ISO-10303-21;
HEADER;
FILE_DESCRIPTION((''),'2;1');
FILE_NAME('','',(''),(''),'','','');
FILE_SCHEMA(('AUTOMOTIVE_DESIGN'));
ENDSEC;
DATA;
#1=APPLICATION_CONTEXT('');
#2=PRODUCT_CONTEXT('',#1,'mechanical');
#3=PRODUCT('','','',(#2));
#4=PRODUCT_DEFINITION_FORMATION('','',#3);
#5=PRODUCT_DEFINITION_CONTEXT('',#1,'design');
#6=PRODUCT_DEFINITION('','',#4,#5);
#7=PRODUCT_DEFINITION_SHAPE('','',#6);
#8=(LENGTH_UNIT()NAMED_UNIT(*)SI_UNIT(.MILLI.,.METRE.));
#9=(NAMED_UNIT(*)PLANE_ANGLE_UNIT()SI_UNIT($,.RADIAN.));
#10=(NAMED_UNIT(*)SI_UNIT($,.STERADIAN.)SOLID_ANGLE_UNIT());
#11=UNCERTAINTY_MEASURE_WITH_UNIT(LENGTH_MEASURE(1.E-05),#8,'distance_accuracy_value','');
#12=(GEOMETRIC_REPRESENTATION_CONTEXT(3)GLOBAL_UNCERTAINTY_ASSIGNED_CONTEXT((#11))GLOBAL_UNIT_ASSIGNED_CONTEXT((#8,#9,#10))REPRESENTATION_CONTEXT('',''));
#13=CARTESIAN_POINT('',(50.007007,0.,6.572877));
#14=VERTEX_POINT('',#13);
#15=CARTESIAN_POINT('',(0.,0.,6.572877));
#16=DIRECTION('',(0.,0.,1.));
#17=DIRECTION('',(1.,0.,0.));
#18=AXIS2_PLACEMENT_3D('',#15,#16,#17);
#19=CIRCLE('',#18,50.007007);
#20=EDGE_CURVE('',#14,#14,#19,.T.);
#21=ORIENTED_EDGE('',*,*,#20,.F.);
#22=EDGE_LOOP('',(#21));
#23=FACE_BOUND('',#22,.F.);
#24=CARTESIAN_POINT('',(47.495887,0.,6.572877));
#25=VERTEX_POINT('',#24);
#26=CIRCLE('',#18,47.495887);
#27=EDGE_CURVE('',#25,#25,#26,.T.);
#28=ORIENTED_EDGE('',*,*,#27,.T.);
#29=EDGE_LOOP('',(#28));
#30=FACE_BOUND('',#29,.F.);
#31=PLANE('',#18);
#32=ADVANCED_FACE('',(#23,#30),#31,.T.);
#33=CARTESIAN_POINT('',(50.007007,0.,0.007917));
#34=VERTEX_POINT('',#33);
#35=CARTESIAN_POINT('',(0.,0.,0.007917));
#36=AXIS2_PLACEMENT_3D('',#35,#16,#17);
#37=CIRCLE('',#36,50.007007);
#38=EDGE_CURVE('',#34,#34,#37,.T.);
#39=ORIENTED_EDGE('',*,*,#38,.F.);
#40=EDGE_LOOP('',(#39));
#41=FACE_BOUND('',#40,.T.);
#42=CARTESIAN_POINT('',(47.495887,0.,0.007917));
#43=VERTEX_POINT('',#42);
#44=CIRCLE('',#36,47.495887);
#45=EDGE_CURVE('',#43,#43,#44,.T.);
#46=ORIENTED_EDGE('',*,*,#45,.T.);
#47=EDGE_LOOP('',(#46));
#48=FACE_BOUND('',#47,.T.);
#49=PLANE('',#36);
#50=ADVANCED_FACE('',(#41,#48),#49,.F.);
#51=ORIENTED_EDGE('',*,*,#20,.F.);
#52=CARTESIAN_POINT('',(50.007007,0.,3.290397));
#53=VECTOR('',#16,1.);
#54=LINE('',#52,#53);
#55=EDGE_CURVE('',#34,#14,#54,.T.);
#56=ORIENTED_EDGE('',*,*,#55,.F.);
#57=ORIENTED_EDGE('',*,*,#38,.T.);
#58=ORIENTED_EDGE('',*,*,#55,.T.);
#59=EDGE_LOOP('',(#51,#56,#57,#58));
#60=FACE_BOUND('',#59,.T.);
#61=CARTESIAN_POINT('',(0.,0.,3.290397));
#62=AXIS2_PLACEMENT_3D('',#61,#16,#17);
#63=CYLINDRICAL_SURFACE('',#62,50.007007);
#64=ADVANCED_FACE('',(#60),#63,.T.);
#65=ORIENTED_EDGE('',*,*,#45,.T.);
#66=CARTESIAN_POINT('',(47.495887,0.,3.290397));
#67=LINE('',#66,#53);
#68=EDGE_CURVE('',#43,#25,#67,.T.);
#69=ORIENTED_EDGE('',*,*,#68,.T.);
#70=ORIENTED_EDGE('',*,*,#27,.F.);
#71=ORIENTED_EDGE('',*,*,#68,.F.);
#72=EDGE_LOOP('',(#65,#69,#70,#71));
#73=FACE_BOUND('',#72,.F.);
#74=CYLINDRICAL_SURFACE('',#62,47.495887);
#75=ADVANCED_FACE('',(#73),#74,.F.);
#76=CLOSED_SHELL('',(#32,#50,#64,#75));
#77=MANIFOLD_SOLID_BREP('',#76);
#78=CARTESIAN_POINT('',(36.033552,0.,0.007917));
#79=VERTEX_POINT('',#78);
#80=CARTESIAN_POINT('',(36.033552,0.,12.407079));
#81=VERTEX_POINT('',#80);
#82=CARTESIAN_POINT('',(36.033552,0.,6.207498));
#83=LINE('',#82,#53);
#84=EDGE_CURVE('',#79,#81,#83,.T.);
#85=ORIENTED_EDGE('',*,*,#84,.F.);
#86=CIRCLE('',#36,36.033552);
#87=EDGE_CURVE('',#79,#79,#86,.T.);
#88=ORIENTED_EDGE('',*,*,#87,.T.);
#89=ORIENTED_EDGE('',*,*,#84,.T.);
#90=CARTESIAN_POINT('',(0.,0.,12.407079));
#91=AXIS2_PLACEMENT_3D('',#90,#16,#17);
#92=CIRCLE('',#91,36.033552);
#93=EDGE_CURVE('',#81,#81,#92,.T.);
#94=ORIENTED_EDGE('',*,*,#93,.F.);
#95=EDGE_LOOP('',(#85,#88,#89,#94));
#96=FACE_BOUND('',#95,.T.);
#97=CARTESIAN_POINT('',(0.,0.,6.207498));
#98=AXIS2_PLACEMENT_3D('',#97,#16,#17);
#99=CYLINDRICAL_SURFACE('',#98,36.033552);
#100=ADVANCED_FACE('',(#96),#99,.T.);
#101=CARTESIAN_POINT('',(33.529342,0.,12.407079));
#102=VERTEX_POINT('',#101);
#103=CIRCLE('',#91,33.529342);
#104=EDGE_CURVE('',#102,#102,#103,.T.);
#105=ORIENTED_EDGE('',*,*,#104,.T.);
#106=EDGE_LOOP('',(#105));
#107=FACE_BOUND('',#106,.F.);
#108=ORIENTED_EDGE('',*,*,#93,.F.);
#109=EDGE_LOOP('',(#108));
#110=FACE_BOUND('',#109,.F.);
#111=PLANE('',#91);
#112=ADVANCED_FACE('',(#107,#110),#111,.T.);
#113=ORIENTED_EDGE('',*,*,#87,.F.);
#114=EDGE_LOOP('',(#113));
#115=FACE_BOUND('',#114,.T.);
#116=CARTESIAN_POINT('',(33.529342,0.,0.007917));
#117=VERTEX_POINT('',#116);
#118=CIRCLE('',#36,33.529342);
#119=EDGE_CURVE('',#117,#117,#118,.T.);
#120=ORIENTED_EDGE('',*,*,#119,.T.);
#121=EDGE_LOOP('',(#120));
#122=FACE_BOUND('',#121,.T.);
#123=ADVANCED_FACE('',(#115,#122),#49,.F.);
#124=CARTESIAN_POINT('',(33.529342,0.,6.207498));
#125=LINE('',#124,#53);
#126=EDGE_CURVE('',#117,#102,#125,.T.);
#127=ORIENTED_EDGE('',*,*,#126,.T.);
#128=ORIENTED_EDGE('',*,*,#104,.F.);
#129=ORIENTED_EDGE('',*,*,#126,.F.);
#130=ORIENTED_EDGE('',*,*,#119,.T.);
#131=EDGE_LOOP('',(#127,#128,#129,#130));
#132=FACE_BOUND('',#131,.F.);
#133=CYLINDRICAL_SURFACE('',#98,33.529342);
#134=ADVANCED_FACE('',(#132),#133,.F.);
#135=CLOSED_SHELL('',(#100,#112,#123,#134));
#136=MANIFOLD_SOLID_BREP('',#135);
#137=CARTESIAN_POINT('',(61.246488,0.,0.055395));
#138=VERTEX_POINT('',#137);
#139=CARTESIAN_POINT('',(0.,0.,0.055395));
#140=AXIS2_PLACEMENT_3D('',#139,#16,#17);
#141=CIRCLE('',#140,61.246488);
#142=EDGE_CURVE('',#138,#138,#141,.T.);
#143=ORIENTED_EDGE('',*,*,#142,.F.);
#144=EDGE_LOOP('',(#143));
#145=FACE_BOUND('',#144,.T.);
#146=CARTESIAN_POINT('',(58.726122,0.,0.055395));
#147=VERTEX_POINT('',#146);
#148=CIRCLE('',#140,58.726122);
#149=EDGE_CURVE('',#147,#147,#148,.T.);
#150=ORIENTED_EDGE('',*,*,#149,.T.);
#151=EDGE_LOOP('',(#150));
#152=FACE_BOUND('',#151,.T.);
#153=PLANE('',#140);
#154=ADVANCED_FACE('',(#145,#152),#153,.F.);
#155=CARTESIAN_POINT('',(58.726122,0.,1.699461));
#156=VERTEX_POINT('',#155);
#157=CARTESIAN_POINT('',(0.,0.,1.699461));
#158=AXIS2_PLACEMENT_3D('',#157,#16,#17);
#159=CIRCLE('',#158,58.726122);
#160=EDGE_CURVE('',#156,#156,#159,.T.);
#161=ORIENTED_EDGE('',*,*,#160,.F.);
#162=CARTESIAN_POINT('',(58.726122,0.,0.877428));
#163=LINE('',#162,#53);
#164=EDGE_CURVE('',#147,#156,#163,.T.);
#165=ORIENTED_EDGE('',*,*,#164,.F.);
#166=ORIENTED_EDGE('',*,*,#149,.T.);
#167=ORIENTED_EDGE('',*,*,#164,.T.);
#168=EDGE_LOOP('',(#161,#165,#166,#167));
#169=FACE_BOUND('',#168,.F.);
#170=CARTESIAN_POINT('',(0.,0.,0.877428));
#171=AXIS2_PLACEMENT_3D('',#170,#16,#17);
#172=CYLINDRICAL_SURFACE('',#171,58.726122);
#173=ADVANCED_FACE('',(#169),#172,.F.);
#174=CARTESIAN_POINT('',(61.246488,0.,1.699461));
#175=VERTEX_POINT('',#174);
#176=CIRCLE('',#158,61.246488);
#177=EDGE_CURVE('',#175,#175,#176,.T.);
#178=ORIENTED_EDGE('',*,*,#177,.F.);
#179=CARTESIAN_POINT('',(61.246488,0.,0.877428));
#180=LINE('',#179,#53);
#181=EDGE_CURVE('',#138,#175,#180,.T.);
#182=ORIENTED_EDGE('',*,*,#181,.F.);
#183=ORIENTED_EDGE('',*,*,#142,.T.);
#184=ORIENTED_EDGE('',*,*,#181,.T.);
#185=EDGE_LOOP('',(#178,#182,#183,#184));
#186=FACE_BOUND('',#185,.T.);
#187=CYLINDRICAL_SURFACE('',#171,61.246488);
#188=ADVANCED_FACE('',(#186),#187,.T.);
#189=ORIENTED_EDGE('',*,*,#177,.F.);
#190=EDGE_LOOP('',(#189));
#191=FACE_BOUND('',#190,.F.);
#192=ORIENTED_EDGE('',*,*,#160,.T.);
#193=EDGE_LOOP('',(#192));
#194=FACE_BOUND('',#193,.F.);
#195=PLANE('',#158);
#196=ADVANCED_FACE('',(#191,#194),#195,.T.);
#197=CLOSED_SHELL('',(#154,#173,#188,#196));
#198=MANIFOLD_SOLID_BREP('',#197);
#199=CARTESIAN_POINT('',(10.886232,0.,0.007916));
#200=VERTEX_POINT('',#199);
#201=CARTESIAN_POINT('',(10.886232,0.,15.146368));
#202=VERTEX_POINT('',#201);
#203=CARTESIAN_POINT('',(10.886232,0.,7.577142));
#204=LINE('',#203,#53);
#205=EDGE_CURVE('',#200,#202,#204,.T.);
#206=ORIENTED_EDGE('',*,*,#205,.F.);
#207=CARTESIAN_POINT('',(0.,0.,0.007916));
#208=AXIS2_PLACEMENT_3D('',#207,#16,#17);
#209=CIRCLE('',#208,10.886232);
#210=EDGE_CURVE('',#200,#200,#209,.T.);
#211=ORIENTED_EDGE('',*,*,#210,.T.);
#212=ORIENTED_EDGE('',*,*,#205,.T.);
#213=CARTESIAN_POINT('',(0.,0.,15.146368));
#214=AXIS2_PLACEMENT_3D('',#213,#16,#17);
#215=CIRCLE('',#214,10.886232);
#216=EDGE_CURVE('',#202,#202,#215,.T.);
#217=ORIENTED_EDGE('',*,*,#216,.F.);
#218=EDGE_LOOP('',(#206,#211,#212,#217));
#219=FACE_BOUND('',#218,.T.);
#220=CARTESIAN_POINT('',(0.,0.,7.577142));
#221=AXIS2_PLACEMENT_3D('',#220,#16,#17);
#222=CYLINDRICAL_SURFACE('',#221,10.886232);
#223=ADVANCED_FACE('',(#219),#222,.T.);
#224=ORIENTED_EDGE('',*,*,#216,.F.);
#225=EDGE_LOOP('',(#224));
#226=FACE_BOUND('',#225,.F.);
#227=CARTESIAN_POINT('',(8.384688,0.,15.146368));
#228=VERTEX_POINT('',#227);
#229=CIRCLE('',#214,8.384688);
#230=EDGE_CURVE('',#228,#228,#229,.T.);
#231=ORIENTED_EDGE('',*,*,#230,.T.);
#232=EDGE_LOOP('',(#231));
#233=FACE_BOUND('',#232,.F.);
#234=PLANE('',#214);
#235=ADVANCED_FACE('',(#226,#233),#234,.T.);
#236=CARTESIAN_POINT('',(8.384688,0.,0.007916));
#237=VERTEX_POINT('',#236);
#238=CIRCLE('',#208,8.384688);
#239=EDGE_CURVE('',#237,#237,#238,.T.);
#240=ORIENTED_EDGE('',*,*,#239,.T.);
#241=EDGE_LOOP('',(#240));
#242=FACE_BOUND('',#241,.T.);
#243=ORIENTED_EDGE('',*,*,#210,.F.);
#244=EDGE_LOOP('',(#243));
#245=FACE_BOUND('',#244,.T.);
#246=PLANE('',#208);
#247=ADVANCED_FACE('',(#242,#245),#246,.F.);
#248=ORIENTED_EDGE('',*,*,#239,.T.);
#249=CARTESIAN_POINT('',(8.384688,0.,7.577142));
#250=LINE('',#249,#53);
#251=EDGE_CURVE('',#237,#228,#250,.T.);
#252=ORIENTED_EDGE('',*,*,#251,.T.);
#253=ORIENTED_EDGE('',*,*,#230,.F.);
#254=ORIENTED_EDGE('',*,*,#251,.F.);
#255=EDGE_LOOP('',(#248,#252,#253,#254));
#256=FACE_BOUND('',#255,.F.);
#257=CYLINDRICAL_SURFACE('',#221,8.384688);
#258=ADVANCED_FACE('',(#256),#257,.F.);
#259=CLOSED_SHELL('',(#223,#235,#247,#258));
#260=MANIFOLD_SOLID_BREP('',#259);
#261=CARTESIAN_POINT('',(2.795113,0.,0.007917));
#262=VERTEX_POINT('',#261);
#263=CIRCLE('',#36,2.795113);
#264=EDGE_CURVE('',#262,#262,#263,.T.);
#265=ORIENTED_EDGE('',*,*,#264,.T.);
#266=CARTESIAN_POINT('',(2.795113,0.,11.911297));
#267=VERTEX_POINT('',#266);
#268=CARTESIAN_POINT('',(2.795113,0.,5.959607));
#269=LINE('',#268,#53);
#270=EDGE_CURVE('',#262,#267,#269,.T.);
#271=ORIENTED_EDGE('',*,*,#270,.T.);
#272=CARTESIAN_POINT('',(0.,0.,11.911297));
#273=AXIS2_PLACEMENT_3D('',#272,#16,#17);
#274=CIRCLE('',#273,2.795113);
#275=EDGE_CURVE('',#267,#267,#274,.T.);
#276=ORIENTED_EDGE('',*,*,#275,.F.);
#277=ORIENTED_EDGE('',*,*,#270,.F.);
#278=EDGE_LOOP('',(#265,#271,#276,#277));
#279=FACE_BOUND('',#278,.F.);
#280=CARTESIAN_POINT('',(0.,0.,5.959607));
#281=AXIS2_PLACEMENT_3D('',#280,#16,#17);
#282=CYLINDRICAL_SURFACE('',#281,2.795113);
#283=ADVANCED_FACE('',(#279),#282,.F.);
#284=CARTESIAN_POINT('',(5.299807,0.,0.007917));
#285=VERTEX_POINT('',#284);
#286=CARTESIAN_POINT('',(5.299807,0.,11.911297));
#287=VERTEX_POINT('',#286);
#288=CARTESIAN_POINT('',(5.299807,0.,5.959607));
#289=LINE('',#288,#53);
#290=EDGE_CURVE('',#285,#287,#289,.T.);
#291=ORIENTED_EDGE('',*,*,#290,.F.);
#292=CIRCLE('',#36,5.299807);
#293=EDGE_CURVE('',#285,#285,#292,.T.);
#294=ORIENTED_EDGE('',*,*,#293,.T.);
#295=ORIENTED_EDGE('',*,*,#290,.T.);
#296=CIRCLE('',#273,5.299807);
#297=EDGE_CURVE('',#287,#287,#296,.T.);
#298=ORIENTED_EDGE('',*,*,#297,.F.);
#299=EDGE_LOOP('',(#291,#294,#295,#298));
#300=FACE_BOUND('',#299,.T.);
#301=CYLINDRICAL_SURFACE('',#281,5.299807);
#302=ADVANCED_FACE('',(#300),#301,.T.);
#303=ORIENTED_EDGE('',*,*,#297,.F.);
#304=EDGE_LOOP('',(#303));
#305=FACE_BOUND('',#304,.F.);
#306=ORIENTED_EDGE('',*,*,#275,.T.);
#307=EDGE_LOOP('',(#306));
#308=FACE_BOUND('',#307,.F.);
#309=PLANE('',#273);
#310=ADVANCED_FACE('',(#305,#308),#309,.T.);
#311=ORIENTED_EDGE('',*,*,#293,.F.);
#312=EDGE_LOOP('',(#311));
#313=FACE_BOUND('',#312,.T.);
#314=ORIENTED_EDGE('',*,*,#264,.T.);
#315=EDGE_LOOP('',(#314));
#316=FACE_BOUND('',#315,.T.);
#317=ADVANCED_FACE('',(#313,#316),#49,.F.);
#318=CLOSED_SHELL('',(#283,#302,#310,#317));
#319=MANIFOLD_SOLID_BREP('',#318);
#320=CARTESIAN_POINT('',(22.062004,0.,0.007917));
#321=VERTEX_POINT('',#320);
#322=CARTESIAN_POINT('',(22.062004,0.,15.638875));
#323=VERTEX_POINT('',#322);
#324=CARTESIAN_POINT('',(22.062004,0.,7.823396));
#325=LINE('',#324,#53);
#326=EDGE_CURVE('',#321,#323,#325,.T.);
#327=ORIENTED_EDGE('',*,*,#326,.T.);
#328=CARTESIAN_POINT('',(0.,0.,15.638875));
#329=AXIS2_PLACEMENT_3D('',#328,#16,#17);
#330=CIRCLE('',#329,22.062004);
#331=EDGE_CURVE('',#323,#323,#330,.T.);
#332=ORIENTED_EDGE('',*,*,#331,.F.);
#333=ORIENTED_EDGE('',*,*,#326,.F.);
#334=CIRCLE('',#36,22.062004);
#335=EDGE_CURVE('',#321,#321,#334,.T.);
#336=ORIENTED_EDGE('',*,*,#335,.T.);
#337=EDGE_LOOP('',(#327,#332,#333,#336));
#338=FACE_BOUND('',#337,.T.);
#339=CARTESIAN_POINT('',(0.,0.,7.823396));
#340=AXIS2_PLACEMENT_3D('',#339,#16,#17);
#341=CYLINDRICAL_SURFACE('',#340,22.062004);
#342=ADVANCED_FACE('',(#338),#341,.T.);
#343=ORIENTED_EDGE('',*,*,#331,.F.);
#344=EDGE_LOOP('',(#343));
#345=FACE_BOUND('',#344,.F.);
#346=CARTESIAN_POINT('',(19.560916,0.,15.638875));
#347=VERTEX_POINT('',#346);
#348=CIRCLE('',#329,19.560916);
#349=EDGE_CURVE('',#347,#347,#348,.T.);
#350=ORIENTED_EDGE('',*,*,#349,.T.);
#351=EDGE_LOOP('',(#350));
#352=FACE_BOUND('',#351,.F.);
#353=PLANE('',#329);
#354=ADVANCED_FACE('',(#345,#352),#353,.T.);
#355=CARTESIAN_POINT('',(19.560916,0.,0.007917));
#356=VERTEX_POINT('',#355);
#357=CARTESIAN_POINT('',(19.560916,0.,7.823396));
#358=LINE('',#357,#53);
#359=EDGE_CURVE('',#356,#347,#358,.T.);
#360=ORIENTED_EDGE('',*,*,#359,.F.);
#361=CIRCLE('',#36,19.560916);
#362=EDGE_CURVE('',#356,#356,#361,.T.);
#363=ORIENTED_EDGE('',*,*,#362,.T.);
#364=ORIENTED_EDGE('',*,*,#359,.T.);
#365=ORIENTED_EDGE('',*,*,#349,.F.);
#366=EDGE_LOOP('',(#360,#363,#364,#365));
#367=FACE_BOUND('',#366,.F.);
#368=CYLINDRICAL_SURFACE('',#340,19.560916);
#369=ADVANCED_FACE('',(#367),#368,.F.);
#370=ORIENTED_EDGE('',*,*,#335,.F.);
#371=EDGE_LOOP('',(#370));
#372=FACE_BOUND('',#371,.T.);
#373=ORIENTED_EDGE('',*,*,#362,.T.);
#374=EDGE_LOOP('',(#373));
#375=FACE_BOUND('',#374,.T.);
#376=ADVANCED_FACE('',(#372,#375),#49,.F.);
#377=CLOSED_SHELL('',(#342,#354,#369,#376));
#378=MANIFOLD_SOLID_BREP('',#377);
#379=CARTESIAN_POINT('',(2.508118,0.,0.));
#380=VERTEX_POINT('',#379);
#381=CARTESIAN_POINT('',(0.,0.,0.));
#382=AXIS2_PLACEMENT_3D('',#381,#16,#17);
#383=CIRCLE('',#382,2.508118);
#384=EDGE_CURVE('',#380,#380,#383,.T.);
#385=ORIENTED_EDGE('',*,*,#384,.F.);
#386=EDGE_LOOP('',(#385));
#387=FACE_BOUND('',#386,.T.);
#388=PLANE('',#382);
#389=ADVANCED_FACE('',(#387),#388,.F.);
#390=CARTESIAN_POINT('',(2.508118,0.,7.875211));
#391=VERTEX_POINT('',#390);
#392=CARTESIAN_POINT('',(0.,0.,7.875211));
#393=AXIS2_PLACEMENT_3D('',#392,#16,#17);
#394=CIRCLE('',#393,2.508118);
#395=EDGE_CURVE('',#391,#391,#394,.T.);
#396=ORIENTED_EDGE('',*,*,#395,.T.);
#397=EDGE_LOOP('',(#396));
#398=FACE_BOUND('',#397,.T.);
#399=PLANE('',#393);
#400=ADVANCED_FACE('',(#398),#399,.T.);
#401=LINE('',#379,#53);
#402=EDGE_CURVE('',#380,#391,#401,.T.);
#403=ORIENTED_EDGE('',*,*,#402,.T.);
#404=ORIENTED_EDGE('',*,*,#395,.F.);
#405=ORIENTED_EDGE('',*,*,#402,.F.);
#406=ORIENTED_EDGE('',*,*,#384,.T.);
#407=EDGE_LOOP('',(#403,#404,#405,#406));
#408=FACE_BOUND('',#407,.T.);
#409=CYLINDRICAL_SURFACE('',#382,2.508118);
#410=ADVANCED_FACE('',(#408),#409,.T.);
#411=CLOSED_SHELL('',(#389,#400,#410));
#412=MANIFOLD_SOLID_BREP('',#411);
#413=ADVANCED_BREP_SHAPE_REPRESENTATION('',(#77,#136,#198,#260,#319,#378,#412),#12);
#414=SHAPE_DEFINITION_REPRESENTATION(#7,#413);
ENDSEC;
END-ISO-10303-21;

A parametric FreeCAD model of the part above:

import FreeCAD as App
import Part
import Sketcher
from FreeCAD import Vector


def add_polygon(sketch, points):
    """Adds a closed chain of lines whose ends are joined by coincident constraints."""
    first, n = sketch.GeometryCount, len(points)
    for a, b in zip(points, points[1:] + points[:1]):
        sketch.addGeometry(Part.LineSegment(App.Vector(*a, 0), App.Vector(*b, 0)), False)
    for i in range(n):
        sketch.addConstraint(Sketcher.Constraint("Coincident", first + i, 2, first + (i + 1) % n, 1))

doc = App.newDocument("Part")
params = doc.addObject("Spreadsheet::Sheet", "Params")
for row, (alias, value) in enumerate([
    ("revolution_angle", "360 deg"),
], start=1):
    params.set(f"A{row}", alias)
    params.set(f"B{row}", "=" + value)
    params.setAlias(f"B{row}", alias)

body = doc.addObject("PartDesign::Body", "Body")
body.AllowCompound = True

# Sketch on XZ plane
sketch1 = doc.addObject("Sketcher::SketchObject", "Sketch")
body.addObject(sketch1)
sketch1.AttachmentSupport = (doc.XZ_Plane, [""])
sketch1.MapMode = "FlatFace"
add_polygon(sketch1, [(0, 7.9), (0, 0), (2.5, 0), (2.5, 7.9)])  # lines 0-3
add_polygon(sketch1, [(2.8, 11.9), (2.8, 0), (5.3, 0), (5.3, 11.9)])  # lines 4-7
add_polygon(sketch1, [(8.4, 15.1), (8.4, 0), (10.9, 0), (10.9, 15.1)])  # lines 8-11
add_polygon(sketch1, [(19.6, 15.6), (19.6, 0), (22.1, 0), (22.1, 15.6)])  # lines 12-15
add_polygon(sketch1, [(33.5, 12.4), (33.5, 0), (36, 0), (36, 12.4)])  # lines 16-19
add_polygon(sketch1, [(47.5, 6.6), (47.5, 0), (50, 0), (50, 6.6)])  # lines 20-23
add_polygon(sketch1, [(58.7, 1.7), (58.7, 0.1), (61.2, 0.1), (61.2, 1.7)])  # lines 24-27
sketch1.addConstraint([
    Sketcher.Constraint("Vertical", 0),
    Sketcher.Constraint("Horizontal", 1),
    Sketcher.Constraint("Vertical", 2),
    Sketcher.Constraint("Horizontal", 3),
    Sketcher.Constraint("Vertical", 4),
    Sketcher.Constraint("Horizontal", 5),
    Sketcher.Constraint("Vertical", 6),
    Sketcher.Constraint("Horizontal", 7),
    Sketcher.Constraint("Vertical", 8),
    Sketcher.Constraint("Horizontal", 9),
    Sketcher.Constraint("Vertical", 10),
    Sketcher.Constraint("Horizontal", 11),
    Sketcher.Constraint("Vertical", 12),
    Sketcher.Constraint("Horizontal", 13),
    Sketcher.Constraint("Vertical", 14),
    Sketcher.Constraint("Horizontal", 15),
    Sketcher.Constraint("Vertical", 16),
    Sketcher.Constraint("Horizontal", 17),
    Sketcher.Constraint("Vertical", 18),
    Sketcher.Constraint("Horizontal", 19),
    Sketcher.Constraint("Vertical", 20),
    Sketcher.Constraint("Horizontal", 21),
    Sketcher.Constraint("Vertical", 22),
    Sketcher.Constraint("Horizontal", 23),
    Sketcher.Constraint("Vertical", 24),
    Sketcher.Constraint("Horizontal", 25),
    Sketcher.Constraint("Vertical", 26),
    Sketcher.Constraint("Horizontal", 27),
    Sketcher.Constraint("Coincident", 0, 2, -1, 1),
    Sketcher.Constraint("Horizontal", 5, 2, 8, 2),
    Sketcher.Constraint("Horizontal", 9, 2, 12, 2),
    Sketcher.Constraint("Horizontal", 13, 2, 16, 2),
    Sketcher.Constraint("Horizontal", 17, 2, 20, 2),
    Sketcher.Constraint("DistanceX", 1, 1, 1, 2, 2.508118),
    Sketcher.Constraint("DistanceX", 13, 1, 13, 2, 2.501088),
    Sketcher.Constraint("DistanceX", 17, 1, 17, 2, 2.504211),
    Sketcher.Constraint("DistanceX", 21, 1, 21, 2, 2.51112),
    Sketcher.Constraint("DistanceY", 0, 2, 0, 1, 7.875211),
    Sketcher.Constraint("DistanceY", 4, 2, 4, 1, 11.90338),
    Sketcher.Constraint("DistanceY", 8, 2, 8, 1, 15.138451),
    Sketcher.Constraint("DistanceY", 16, 2, 16, 1, 12.399162),
    Sketcher.Constraint("DistanceY", 20, 2, 20, 1, 6.56496),
    Sketcher.Constraint("DistanceX", 20, 2, 25, 2, 13.750601),
    Sketcher.Constraint("DistanceX", 5, 1, 5, 2, 2.504694),
    Sketcher.Constraint("DistanceX", 9, 1, 9, 2, 2.501544),
    Sketcher.Constraint("DistanceX", 25, 1, 25, 2, 2.520366),
    Sketcher.Constraint("DistanceY", 12, 2, 12, 1, 15.630957),
    Sketcher.Constraint("DistanceY", 24, 2, 24, 1, 1.644066),
    Sketcher.Constraint("DistanceX", -1, 1, 16, 2, 33.529342),
    Sketcher.Constraint("DistanceY", -1, 1, 18, 2, 12.407079),
    Sketcher.Constraint("DistanceX", -1, 1, 24, 2, 58.726122),
    Sketcher.Constraint("DistanceY", -1, 1, 26, 2, 1.699461),
    Sketcher.Constraint("DistanceX", 1, 2, 5, 2, 2.791689),
    Sketcher.Constraint("DistanceX", 5, 2, 8, 2, 3.084881),
    Sketcher.Constraint("DistanceX", 5, 2, 12, 2, 14.261109),
])
revolution = doc.addObject("PartDesign::Revolution", "Revolution")
body.addObject(revolution)
revolution.Profile = sketch1
revolution.ReferenceAxis = (sketch1, ["V_Axis"])
revolution.setExpression("Angle", "Params.revolution_angle")

doc.recompute()
